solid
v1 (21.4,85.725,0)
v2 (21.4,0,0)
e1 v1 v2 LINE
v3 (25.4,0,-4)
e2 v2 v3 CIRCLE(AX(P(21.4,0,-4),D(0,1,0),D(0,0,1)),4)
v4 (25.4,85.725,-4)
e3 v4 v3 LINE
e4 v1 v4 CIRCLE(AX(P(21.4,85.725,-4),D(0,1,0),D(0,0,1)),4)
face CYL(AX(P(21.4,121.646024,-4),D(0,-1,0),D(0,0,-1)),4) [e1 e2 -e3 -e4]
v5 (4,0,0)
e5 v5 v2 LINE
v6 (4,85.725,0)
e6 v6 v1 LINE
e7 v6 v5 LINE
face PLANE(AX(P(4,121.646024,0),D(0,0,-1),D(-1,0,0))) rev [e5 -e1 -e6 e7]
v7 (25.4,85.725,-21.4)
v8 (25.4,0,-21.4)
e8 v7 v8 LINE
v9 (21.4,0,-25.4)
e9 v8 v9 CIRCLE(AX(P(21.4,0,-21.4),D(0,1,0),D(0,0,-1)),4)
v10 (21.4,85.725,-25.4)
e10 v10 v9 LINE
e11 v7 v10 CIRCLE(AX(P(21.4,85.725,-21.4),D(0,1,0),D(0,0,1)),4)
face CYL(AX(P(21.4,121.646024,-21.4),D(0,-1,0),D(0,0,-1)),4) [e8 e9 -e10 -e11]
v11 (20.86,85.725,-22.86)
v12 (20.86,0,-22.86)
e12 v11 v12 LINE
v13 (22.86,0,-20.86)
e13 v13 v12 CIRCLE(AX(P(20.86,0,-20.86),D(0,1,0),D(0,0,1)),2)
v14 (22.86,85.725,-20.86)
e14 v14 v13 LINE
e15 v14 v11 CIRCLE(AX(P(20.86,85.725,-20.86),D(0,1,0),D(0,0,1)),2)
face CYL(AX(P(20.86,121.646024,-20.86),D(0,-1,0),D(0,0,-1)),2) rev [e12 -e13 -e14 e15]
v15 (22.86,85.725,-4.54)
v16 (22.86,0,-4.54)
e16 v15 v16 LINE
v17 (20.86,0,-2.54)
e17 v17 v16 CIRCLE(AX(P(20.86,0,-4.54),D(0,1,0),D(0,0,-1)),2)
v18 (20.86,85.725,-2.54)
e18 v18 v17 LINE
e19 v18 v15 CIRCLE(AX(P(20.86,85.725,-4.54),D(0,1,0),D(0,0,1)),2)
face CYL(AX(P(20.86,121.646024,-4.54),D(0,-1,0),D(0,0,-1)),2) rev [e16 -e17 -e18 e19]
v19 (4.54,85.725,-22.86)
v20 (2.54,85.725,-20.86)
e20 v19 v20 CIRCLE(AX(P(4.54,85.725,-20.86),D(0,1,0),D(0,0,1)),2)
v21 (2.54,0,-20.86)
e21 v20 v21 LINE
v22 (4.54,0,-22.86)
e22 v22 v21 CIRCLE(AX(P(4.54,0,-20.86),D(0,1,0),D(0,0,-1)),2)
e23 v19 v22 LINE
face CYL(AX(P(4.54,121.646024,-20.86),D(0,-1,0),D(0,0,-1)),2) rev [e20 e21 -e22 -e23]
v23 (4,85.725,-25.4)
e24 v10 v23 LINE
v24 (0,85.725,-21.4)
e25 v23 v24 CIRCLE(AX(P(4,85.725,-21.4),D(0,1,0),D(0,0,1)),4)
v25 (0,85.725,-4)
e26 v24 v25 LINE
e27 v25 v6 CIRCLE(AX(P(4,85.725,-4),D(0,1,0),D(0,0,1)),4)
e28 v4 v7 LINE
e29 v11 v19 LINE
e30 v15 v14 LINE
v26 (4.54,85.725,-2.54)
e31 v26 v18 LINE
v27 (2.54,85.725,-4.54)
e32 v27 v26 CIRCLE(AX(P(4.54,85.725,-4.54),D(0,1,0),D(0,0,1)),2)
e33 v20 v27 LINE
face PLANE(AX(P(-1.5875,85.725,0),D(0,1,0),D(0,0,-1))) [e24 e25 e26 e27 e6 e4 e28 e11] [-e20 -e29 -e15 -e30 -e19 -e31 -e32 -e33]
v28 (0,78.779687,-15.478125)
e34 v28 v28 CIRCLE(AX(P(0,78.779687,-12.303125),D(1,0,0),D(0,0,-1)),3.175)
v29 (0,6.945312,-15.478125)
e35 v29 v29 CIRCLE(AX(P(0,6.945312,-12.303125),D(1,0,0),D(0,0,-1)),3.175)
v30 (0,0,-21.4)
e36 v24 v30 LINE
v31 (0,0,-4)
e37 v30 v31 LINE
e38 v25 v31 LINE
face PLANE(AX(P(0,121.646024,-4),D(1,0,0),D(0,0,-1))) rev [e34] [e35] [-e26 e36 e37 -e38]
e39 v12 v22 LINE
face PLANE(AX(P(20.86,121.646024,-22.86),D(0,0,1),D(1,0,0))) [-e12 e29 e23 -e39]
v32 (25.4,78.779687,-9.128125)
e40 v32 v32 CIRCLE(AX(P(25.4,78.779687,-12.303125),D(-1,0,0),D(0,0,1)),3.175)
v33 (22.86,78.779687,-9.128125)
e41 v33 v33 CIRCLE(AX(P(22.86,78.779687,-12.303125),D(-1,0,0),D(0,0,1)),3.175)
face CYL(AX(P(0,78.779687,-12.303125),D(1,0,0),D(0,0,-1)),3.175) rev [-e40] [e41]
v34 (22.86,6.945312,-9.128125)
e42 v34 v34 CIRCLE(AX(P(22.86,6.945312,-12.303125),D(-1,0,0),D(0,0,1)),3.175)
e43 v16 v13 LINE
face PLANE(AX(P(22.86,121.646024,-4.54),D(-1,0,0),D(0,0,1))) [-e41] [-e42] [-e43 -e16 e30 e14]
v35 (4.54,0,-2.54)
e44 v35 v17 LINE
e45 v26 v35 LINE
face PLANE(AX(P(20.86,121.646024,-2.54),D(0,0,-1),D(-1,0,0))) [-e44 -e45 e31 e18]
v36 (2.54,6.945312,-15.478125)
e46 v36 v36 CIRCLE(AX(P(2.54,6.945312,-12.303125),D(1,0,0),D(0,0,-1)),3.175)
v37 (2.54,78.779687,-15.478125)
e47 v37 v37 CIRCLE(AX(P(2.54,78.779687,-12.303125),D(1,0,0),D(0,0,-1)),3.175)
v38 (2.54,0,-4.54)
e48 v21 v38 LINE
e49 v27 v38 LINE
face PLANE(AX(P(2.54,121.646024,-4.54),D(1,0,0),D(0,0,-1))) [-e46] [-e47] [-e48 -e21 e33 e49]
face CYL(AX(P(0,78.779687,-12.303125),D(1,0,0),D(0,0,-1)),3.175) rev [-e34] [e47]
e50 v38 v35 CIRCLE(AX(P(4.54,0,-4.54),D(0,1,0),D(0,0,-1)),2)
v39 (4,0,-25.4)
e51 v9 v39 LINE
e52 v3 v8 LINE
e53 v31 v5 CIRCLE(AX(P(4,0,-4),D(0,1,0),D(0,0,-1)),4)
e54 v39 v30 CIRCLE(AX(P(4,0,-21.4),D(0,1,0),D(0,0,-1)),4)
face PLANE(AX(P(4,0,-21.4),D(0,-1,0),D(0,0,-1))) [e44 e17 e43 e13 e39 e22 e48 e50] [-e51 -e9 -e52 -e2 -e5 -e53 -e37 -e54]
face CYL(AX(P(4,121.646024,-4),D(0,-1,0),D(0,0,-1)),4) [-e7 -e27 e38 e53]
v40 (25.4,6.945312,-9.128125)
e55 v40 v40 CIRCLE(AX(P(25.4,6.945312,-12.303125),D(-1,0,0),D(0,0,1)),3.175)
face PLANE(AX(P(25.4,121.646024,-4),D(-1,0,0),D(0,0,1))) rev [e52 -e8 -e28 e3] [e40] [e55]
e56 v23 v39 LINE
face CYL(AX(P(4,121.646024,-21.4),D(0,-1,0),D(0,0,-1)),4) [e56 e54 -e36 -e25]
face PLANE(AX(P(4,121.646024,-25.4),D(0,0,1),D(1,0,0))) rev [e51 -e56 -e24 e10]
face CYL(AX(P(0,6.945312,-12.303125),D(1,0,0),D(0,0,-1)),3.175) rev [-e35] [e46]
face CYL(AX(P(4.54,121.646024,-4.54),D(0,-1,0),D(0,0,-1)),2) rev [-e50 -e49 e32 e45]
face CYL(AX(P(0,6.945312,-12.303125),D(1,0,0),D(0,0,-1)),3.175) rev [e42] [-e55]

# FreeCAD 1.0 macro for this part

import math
import FreeCAD as App
import Part
import Sketcher

doc = App.newDocument("Part")
body = doc.addObject("PartDesign::Body", "Body")

sketch1 = body.newObject("Sketcher::SketchObject", "Sketch")
sketch1.AttachmentSupport = (doc.getObject("XZ_Plane"), [""])
sketch1.MapMode = "FlatFace"
sketch1.addGeometry(Part.LineSegment(App.Vector(4, 0, 0), App.Vector(21.4, 0, 0)), False)
sketch1.addGeometry(Part.ArcOfCircle(Part.Circle(App.Vector(21.4, -4, 0), App.Vector(0, 0, 1), 4), math.radians(0), math.radians(90)), False)
sketch1.addGeometry(Part.LineSegment(App.Vector(25.4, -4, 0), App.Vector(25.4, -21.4, 0)), False)
sketch1.addGeometry(Part.ArcOfCircle(Part.Circle(App.Vector(21.4, -21.4, 0), App.Vector(0, 0, 1), 4), math.radians(-90), math.radians(0)), False)
sketch1.addGeometry(Part.LineSegment(App.Vector(21.4, -25.4, 0), App.Vector(4, -25.4, 0)), False)
sketch1.addGeometry(Part.ArcOfCircle(Part.Circle(App.Vector(4, -21.4, 0), App.Vector(0, 0, 1), 4), math.radians(180), math.radians(270)), False)
sketch1.addGeometry(Part.LineSegment(App.Vector(0, -21.4, 0), App.Vector(0, -4, 0)), False)
sketch1.addGeometry(Part.ArcOfCircle(Part.Circle(App.Vector(4, -4, 0), App.Vector(0, 0, 1), 4), math.radians(90), math.radians(180)), False)
sketch1.addGeometry(Part.ArcOfCircle(Part.Circle(App.Vector(20.9, -4.5, 0), App.Vector(0, 0, 1), 2), math.radians(0), math.radians(90)), False)
sketch1.addGeometry(Part.LineSegment(App.Vector(20.9, -2.5, 0), App.Vector(4.5, -2.5, 0)), False)
sketch1.addGeometry(Part.ArcOfCircle(Part.Circle(App.Vector(4.5, -4.5, 0), App.Vector(0, 0, 1), 2), math.radians(90), math.radians(180)), False)
sketch1.addGeometry(Part.LineSegment(App.Vector(2.5, -4.5, 0), App.Vector(2.5, -20.9, 0)), False)
sketch1.addGeometry(Part.ArcOfCircle(Part.Circle(App.Vector(4.5, -20.9, 0), App.Vector(0, 0, 1), 2), math.radians(-180), math.radians(-90)), False)
sketch1.addGeometry(Part.LineSegment(App.Vector(4.5, -22.9, 0), App.Vector(20.9, -22.9, 0)), False)
sketch1.addGeometry(Part.ArcOfCircle(Part.Circle(App.Vector(20.9, -20.9, 0), App.Vector(0, 0, 1), 2), math.radians(-90), math.radians(0)), False)
sketch1.addGeometry(Part.LineSegment(App.Vector(22.9, -20.9, 0), App.Vector(22.9, -4.5, 0)), False)
sketch1.addConstraint(Sketcher.Constraint("Tangent", 0, 2, 1, 2))
sketch1.addConstraint(Sketcher.Constraint("Tangent", 1, 1, 2, 1))
sketch1.addConstraint(Sketcher.Constraint("Tangent", 2, 2, 3, 2))
sketch1.addConstraint(Sketcher.Constraint("Tangent", 3, 1, 4, 1))
sketch1.addConstraint(Sketcher.Constraint("Tangent", 4, 2, 5, 2))
sketch1.addConstraint(Sketcher.Constraint("Tangent", 5, 1, 6, 1))
sketch1.addConstraint(Sketcher.Constraint("Tangent", 6, 2, 7, 2))
sketch1.addConstraint(Sketcher.Constraint("Tangent", 7, 1, 0, 1))
sketch1.addConstraint(Sketcher.Constraint("Tangent", 8, 2, 9, 1))
sketch1.addConstraint(Sketcher.Constraint("Tangent", 9, 2, 10, 1))
sketch1.addConstraint(Sketcher.Constraint("Tangent", 10, 2, 11, 1))
sketch1.addConstraint(Sketcher.Constraint("Tangent", 11, 2, 12, 1))
sketch1.addConstraint(Sketcher.Constraint("Tangent", 12, 2, 13, 1))
sketch1.addConstraint(Sketcher.Constraint("Tangent", 13, 2, 14, 1))
sketch1.addConstraint(Sketcher.Constraint("Tangent", 14, 2, 15, 1))
sketch1.addConstraint(Sketcher.Constraint("Tangent", 15, 2, 8, 1))
sketch1.addConstraint(Sketcher.Constraint("Horizontal", 0))
sketch1.addConstraint(Sketcher.Constraint("Vertical", 2))
sketch1.addConstraint(Sketcher.Constraint("Horizontal", 4))
sketch1.addConstraint(Sketcher.Constraint("Vertical", 6))
sketch1.addConstraint(Sketcher.Constraint("Horizontal", 9))
sketch1.addConstraint(Sketcher.Constraint("Vertical", 11))
sketch1.addConstraint(Sketcher.Constraint("Horizontal", 13))
sketch1.addConstraint(Sketcher.Constraint("Vertical", 15))
sketch1.addConstraint(Sketcher.Constraint("Equal", 1, 3))
sketch1.addConstraint(Sketcher.Constraint("Equal", 3, 5))
sketch1.addConstraint(Sketcher.Constraint("Equal", 5, 7))
sketch1.addConstraint(Sketcher.Constraint("Equal", 8, 10))
sketch1.addConstraint(Sketcher.Constraint("Equal", 10, 12))
sketch1.addConstraint(Sketcher.Constraint("Equal", 12, 14))
sketch1.addConstraint(Sketcher.Constraint("PointOnObject", 0, 2, -1))
sketch1.addConstraint(Sketcher.Constraint("PointOnObject", 5, 1, -2))
sketch1.addConstraint(Sketcher.Constraint("Equal", 4, 2))
sketch1.addConstraint(Sketcher.Constraint("Equal", 13, 11))
sketch1.addConstraint(Sketcher.Constraint("Radius", 1, 4.0))
sketch1.addConstraint(Sketcher.Constraint("Radius", 8, 2.0))
sketch1.addConstraint(Sketcher.Constraint("DistanceX", 0, 1, 0, 2, 17.4))
sketch1.addConstraint(Sketcher.Constraint("DistanceX", 9, 2, 9, 1, 16.32))
sketch1.addConstraint(Sketcher.Constraint("DistanceX", -1, 1, 8, 3, 20.86))
sketch1.addConstraint(Sketcher.Constraint("DistanceY", 8, 3, -1, 1, 4.54))
pad1 = body.newObject("PartDesign::Pad", "Pad")
pad1.Profile = sketch1
pad1.Length = 85.725
pad1.Reversed = True

sketch2 = body.newObject("Sketcher::SketchObject", "Sketch001")
sketch2.AttachmentSupport = (doc.getObject("YZ_Plane"), [""])
sketch2.MapMode = "FlatFace"
sketch2.AttachmentOffset = App.Placement(App.Vector(0, 0, 25.4), App.Rotation())
sketch2.addGeometry(Part.Circle(App.Vector(6.9, -12.3, 0), App.Vector(0, 0, 1), 3.2), False)
sketch2.addGeometry(Part.Circle(App.Vector(78.8, -12.3, 0), App.Vector(0, 0, 1), 3.2), False)
sketch2.addConstraint(Sketcher.Constraint("Equal", 0, 1))
sketch2.addConstraint(Sketcher.Constraint("Horizontal", 0, 3, 1, 3))
sketch2.addConstraint(Sketcher.Constraint("Diameter", 0, 6.35))
sketch2.addConstraint(Sketcher.Constraint("DistanceX", -1, 1, 0, 3, 6.945312))
sketch2.addConstraint(Sketcher.Constraint("DistanceY", 0, 3, -1, 1, 12.303125))
sketch2.addConstraint(Sketcher.Constraint("DistanceX", -1, 1, 1, 3, 78.779687))
pocket1 = body.newObject("PartDesign::Pocket", "Pocket")
pocket1.Profile = sketch2
pocket1.Type = "ThroughAll"
pocket1.Midplane = True

doc.recompute()
